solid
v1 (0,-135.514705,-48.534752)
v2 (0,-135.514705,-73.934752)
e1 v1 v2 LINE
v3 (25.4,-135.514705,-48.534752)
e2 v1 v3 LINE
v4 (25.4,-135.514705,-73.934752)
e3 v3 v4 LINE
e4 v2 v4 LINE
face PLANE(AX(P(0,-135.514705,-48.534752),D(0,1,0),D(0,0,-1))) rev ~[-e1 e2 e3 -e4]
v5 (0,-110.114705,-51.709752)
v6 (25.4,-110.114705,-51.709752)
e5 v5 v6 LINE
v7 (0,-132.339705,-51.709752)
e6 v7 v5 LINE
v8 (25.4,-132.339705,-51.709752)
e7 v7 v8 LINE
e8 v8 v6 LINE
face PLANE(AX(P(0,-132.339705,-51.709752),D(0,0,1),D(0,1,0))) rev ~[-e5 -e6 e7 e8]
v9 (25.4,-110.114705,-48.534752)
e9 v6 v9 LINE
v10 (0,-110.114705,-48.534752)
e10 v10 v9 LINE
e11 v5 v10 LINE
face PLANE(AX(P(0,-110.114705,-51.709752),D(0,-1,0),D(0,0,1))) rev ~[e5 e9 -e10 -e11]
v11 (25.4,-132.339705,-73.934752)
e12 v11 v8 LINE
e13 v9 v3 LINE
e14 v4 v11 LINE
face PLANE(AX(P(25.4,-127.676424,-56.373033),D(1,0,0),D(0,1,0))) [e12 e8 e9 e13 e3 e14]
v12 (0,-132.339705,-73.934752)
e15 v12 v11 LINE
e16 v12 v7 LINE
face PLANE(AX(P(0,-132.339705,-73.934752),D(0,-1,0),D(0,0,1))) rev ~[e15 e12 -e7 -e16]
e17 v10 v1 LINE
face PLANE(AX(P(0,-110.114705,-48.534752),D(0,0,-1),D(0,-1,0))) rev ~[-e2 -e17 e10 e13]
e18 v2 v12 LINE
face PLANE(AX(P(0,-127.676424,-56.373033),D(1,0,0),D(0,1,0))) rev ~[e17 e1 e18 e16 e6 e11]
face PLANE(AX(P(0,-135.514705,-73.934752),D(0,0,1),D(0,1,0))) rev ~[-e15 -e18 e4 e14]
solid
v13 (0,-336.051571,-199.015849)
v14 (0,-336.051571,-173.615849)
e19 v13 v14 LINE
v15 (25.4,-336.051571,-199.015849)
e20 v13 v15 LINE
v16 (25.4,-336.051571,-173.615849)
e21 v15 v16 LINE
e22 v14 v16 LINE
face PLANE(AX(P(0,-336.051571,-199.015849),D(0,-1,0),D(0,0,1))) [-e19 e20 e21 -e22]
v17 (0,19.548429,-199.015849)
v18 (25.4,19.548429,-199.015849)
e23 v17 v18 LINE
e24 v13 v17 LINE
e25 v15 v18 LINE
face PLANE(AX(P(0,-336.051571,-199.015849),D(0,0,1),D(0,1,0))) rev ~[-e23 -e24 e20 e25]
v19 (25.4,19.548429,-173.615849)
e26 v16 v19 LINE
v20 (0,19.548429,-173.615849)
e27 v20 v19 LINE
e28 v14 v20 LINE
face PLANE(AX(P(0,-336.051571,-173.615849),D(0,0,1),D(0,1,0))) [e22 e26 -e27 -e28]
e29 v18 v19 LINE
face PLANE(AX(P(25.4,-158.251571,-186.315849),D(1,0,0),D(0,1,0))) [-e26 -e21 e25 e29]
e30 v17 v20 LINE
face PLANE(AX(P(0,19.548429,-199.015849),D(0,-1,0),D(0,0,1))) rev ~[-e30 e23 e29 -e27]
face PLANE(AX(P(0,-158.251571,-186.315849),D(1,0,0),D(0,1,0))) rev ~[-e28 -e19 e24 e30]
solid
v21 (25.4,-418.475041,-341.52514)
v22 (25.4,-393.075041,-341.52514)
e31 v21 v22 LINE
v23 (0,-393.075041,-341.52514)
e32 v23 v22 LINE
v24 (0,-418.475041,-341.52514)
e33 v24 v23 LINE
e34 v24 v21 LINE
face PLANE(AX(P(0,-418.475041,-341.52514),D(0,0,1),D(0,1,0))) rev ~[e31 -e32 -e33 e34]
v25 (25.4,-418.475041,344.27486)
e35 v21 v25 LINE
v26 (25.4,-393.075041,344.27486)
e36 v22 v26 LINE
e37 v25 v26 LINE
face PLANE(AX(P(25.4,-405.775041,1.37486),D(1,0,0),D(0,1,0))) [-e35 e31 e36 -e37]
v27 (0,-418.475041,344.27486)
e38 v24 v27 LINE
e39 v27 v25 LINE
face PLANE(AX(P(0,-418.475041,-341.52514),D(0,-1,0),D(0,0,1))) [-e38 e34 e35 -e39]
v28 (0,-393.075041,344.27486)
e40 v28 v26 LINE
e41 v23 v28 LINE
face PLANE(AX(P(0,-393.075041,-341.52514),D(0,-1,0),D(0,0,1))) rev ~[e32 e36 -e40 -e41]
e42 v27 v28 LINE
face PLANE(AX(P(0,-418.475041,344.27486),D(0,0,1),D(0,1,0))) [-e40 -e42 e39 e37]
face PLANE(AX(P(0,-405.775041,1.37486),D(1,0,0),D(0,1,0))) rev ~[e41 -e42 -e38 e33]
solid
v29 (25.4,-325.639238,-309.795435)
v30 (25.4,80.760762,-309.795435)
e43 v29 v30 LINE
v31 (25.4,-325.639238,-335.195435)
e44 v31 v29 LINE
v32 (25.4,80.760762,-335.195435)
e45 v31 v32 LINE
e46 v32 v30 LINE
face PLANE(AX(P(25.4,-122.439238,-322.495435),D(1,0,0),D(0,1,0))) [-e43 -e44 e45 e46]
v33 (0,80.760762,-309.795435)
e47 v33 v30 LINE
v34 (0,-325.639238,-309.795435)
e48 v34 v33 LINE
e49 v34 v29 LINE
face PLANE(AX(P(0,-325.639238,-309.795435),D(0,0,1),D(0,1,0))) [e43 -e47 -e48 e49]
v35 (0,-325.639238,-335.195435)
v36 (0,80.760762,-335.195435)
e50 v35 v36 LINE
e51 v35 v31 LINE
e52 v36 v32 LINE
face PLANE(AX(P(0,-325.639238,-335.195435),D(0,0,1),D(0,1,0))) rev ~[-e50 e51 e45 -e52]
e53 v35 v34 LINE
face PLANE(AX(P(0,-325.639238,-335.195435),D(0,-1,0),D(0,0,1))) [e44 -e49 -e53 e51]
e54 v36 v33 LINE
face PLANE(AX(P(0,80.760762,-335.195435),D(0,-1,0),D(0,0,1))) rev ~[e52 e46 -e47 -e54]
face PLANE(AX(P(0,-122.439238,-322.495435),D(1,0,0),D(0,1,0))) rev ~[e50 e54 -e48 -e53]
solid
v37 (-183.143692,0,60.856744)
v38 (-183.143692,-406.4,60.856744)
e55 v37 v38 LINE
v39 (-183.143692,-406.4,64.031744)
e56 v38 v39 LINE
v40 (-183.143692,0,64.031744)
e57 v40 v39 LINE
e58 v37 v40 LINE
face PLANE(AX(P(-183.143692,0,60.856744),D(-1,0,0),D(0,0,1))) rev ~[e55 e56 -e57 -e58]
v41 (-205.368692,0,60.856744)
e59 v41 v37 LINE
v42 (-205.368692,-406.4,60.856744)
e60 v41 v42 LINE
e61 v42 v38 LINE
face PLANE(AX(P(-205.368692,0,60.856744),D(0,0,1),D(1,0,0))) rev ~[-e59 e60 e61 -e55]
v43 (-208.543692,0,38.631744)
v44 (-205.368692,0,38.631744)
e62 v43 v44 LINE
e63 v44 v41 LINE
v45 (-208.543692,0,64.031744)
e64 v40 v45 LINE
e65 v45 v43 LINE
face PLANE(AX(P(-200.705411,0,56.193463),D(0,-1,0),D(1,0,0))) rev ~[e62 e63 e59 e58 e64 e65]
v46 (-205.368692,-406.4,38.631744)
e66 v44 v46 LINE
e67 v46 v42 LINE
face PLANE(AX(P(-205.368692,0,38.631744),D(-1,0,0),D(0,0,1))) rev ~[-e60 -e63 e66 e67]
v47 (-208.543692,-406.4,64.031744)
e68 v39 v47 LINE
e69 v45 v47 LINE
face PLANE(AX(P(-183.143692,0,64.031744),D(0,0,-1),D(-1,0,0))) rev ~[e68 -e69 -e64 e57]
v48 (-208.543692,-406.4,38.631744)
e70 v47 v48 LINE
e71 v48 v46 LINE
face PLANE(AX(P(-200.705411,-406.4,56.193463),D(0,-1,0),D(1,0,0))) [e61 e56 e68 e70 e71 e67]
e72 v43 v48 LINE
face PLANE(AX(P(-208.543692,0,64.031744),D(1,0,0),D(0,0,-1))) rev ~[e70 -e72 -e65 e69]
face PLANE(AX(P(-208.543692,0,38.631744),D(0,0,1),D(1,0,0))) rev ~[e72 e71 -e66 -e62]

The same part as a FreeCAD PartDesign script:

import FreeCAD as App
import Part
import Sketcher
from FreeCAD import Vector
Q = App.Units.Quantity

doc = App.newDocument("Part")
body = doc.addObject("PartDesign::Body", "Body")
body.AllowCompound = True

sketch1 = body.newObject("Sketcher::SketchObject", "Sketch")
sketch1.AttachmentSupport = (doc.getObject("YZ_Plane"), [""])
sketch1.MapMode = "FlatFace"
sketch1.addGeometry([
    Part.LineSegment(Vector(-418.475041, 344.27486, 0), Vector(-418.475041, -341.52514, 0)),
    Part.LineSegment(Vector(-418.475041, -341.52514, 0), Vector(-393.075041, -341.52514, 0)),
    Part.LineSegment(Vector(-393.075041, -341.52514, 0), Vector(-393.075041, 344.27486, 0)),
    Part.LineSegment(Vector(-393.075041, 344.27486, 0), Vector(-418.475041, 344.27486, 0)),
    Part.LineSegment(Vector(-325.639238, -309.795435, 0), Vector(-325.639238, -335.195435, 0)),
    Part.LineSegment(Vector(-325.639238, -335.195435, 0), Vector(80.760762, -335.195435, 0)),
    Part.LineSegment(Vector(80.760762, -335.195435, 0), Vector(80.760762, -309.795435, 0)),
    Part.LineSegment(Vector(80.760762, -309.795435, 0), Vector(-325.639238, -309.795435, 0)),
    Part.LineSegment(Vector(-336.051571, -173.615849, 0), Vector(-336.051571, -199.015849, 0)),
    Part.LineSegment(Vector(-336.051571, -199.015849, 0), Vector(19.548429, -199.015849, 0)),
    Part.LineSegment(Vector(19.548429, -199.015849, 0), Vector(19.548429, -173.615849, 0)),
    Part.LineSegment(Vector(19.548429, -173.615849, 0), Vector(-336.051571, -173.615849, 0)),
], False)
sketch1.addConstraint([
    Sketcher.Constraint("Coincident", 0, 2, 1, 1),
    Sketcher.Constraint("Coincident", 1, 2, 2, 1),
    Sketcher.Constraint("Coincident", 2, 2, 3, 1),
    Sketcher.Constraint("Coincident", 3, 2, 0, 1),
    Sketcher.Constraint("Coincident", 4, 2, 5, 1),
    Sketcher.Constraint("Coincident", 5, 2, 6, 1),
    Sketcher.Constraint("Coincident", 6, 2, 7, 1),
    Sketcher.Constraint("Coincident", 7, 2, 4, 1),
    Sketcher.Constraint("Coincident", 8, 2, 9, 1),
    Sketcher.Constraint("Coincident", 9, 2, 10, 1),
    Sketcher.Constraint("Coincident", 10, 2, 11, 1),
    Sketcher.Constraint("Coincident", 11, 2, 8, 1),
    Sketcher.Constraint("Vertical", 0),
    Sketcher.Constraint("Horizontal", 1),
    Sketcher.Constraint("Vertical", 2),
    Sketcher.Constraint("Horizontal", 3),
    Sketcher.Constraint("Vertical", 4),
    Sketcher.Constraint("Horizontal", 5),
    Sketcher.Constraint("Vertical", 6),
    Sketcher.Constraint("Horizontal", 7),
    Sketcher.Constraint("Vertical", 8),
    Sketcher.Constraint("Horizontal", 9),
    Sketcher.Constraint("Vertical", 10),
    Sketcher.Constraint("Horizontal", 11),
    Sketcher.Constraint("Equal", 3, 4),
    Sketcher.Constraint("Equal", 6, 8),
    Sketcher.Constraint("DistanceX", 1, 1, 1, 2, Q("1 in")),
    Sketcher.Constraint("DistanceX", 5, 1, 5, 2, Q("16 in")),
    Sketcher.Constraint("DistanceX", 9, 1, 9, 2, Q("14 in")),
    Sketcher.Constraint("DistanceY", 0, 2, 0, 1, Q("27 in")),
    Sketcher.Constraint("DistanceX", 0, 2, -1, 1, 418.475041),
    Sketcher.Constraint("DistanceY", 0, 2, -1, 1, 341.52514),
    Sketcher.Constraint("DistanceX", 4, 2, -1, 1, 325.639238),
    Sketcher.Constraint("DistanceX", 8, 2, -1, 1, 336.051571),
    Sketcher.Constraint("DistanceY", 8, 2, -1, 1, 199.015849),
    Sketcher.Constraint("DistanceY", 4, 2, -1, 1, 335.195435),
])
pad1 = body.newObject("PartDesign::Pad", "Pad")
pad1.Profile = sketch1
pad1.Length = Q("1 in")
body2 = doc.addObject("PartDesign::Body", "Body001")

sketch2 = body2.newObject("Sketcher::SketchObject", "Sketch001")
sketch2.AttachmentSupport = (doc.getObject("XZ_Plane001"), [""])
sketch2.MapMode = "FlatFace"
sketch2.addGeometry([
    Part.LineSegment(Vector(-208.543692, 64.031744, 0), Vector(-208.543692, 38.631744, 0)),
    Part.LineSegment(Vector(-208.543692, 38.631744, 0), Vector(-205.368692, 38.631744, 0)),
    Part.LineSegment(Vector(-205.368692, 38.631744, 0), Vector(-205.368692, 60.856744, 0)),
    Part.LineSegment(Vector(-205.368692, 60.856744, 0), Vector(-183.143692, 60.856744, 0)),
    Part.LineSegment(Vector(-183.143692, 60.856744, 0), Vector(-183.143692, 64.031744, 0)),
    Part.LineSegment(Vector(-183.143692, 64.031744, 0), Vector(-208.543692, 64.031744, 0)),
], False)
sketch2.addConstraint([
    Sketcher.Constraint("Coincident", 0, 2, 1, 1),
    Sketcher.Constraint("Coincident", 1, 2, 2, 1),
    Sketcher.Constraint("Coincident", 2, 2, 3, 1),
    Sketcher.Constraint("Coincident", 3, 2, 4, 1),
    Sketcher.Constraint("Coincident", 4, 2, 5, 1),
    Sketcher.Constraint("Coincident", 5, 2, 0, 1),
    Sketcher.Constraint("Vertical", 0),
    Sketcher.Constraint("Horizontal", 1),
    Sketcher.Constraint("Vertical", 2),
    Sketcher.Constraint("Horizontal", 3),
    Sketcher.Constraint("Vertical", 4),
    Sketcher.Constraint("Horizontal", 5),
    Sketcher.Constraint("Equal", 5, 0),
    Sketcher.Constraint("Equal", 3, 2),
    Sketcher.Constraint("DistanceX", 5, 2, 5, 1, Q("1 in")),
    Sketcher.Constraint("DistanceX", 1, 1, 1, 2, Q("0.125 in")),
    Sketcher.Constraint("DistanceX", 0, 2, -1, 1, 208.543692),
    Sketcher.Constraint("DistanceY", -1, 1, 0, 2, 38.631744),
])
pad2 = body2.newObject("PartDesign::Pad", "Pad001")
pad2.Profile = sketch2
pad2.Length = Q("16 in")
body3 = doc.addObject("PartDesign::Body", "Body002")

sketch3 = body3.newObject("Sketcher::SketchObject", "Sketch002")
sketch3.AttachmentSupport = (doc.getObject("YZ_Plane002"), [""])
sketch3.MapMode = "FlatFace"
sketch3.addGeometry([
    Part.LineSegment(Vector(-135.514705, -48.534752, 0), Vector(-135.514705, -73.934752, 0)),
    Part.LineSegment(Vector(-135.514705, -73.934752, 0), Vector(-132.339705, -73.934752, 0)),
    Part.LineSegment(Vector(-132.339705, -73.934752, 0), Vector(-132.339705, -51.709752, 0)),
    Part.LineSegment(Vector(-132.339705, -51.709752, 0), Vector(-110.114705, -51.709752, 0)),
    Part.LineSegment(Vector(-110.114705, -51.709752, 0), Vector(-110.114705, -48.534752, 0)),
    Part.LineSegment(Vector(-110.114705, -48.534752, 0), Vector(-135.514705, -48.534752, 0)),
], False)
sketch3.addConstraint([
    Sketcher.Constraint("Coincident", 0, 2, 1, 1),
    Sketcher.Constraint("Coincident", 1, 2, 2, 1),
    Sketcher.Constraint("Coincident", 2, 2, 3, 1),
    Sketcher.Constraint("Coincident", 3, 2, 4, 1),
    Sketcher.Constraint("Coincident", 4, 2, 5, 1),
    Sketcher.Constraint("Coincident", 5, 2, 0, 1),
    Sketcher.Constraint("Vertical", 0),
    Sketcher.Constraint("Horizontal", 1),
    Sketcher.Constraint("Vertical", 2),
    Sketcher.Constraint("Horizontal", 3),
    Sketcher.Constraint("Vertical", 4),
    Sketcher.Constraint("Horizontal", 5),
    Sketcher.Constraint("Equal", 5, 0),
    Sketcher.Constraint("Equal", 3, 2),
    Sketcher.Constraint("DistanceX", 5, 2, 5, 1, Q("1 in")),
    Sketcher.Constraint("DistanceX", 1, 1, 1, 2, Q("0.125 in")),
    Sketcher.Constraint("DistanceY", 4, 2, -1, 1, 48.534752),
    Sketcher.Constraint("DistanceX", 0, 2, -1, 1, 135.514705),
])
pad3 = body3.newObject("PartDesign::Pad", "Pad002")
pad3.Profile = sketch3
pad3.Length = Q("1 in")

doc.recompute()
